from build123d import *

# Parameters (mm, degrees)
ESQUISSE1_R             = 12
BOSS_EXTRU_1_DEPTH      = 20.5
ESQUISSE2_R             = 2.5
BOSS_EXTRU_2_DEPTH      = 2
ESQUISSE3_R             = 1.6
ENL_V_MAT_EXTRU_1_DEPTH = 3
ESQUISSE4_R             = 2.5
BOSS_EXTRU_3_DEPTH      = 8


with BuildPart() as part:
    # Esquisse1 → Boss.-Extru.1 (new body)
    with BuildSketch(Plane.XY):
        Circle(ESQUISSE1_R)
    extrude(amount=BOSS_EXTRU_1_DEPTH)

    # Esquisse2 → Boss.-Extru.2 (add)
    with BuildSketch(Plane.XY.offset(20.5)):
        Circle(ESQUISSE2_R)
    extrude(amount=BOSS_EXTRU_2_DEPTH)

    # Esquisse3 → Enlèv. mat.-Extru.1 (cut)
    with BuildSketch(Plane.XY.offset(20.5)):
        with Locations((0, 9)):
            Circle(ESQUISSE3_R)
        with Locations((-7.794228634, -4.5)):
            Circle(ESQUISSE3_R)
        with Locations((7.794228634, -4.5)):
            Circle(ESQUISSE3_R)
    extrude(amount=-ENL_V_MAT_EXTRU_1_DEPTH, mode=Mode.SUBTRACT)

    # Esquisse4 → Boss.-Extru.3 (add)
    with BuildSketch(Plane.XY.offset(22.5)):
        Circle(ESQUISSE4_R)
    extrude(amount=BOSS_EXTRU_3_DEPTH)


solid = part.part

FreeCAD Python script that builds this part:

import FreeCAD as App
import Part
import Sketcher
from FreeCAD import Vector

doc = App.newDocument("Part")
body = doc.addObject("PartDesign::Body", "Body")

sketch1 = body.newObject("Sketcher::SketchObject", "Sketch")
sketch1.AttachmentSupport = (doc.getObject("XY_Plane"), [""])
sketch1.MapMode = "FlatFace"
sketch1.addGeometry(Part.Circle(Vector(0, 0, 0), Vector(0, 0, 1), 12), False)
sketch1.addConstraint([
    Sketcher.Constraint("Coincident", 0, 3, -1, 1),
    Sketcher.Constraint("Diameter", 0, 24.0),
])
pad1 = body.newObject("PartDesign::Pad", "Pad")
pad1.Profile = sketch1
pad1.Length = 20.5

sketch2 = body.newObject("Sketcher::SketchObject", "Sketch001")
sketch2.AttachmentSupport = (doc.getObject("XY_Plane"), [""])
sketch2.MapMode = "FlatFace"
sketch2.AttachmentOffset = App.Placement(Vector(0, 0, 20.5), App.Rotation())
sketch2.addGeometry(Part.Circle(Vector(0, 0, 0), Vector(0, 0, 1), 2.5), False)
sketch2.addConstraint([
    Sketcher.Constraint("Coincident", 0, 3, -1, 1),
    Sketcher.Constraint("Diameter", 0, 5.0),
])
pad2 = body.newObject("PartDesign::Pad", "Pad001")
pad2.Profile = sketch2
pad2.Length = 2

sketch3 = body.newObject("Sketcher::SketchObject", "Sketch002")
sketch3.AttachmentSupport = (doc.getObject("XY_Plane"), [""])
sketch3.MapMode = "FlatFace"
sketch3.AttachmentOffset = App.Placement(Vector(0, 0, 20.5), App.Rotation())
sketch3.addGeometry([
    Part.Circle(Vector(0, 9, 0), Vector(0, 0, 1), 1.6),
    Part.Circle(Vector(-7.794229, -4.5, 0), Vector(0, 0, 1), 1.6),
    Part.Circle(Vector(7.794229, -4.5, 0), Vector(0, 0, 1), 1.6),
], False)
sketch3.addConstraint([
    Sketcher.Constraint("Equal", 0, 1),
    Sketcher.Constraint("Equal", 1, 2),
    Sketcher.Constraint("Symmetric", 1, 3, 2, 3, -2),
    Sketcher.Constraint("PointOnObject", 0, 3, -2),
    Sketcher.Constraint("Diameter", 0, 3.2),
    Sketcher.Constraint("DistanceY", -1, 1, 0, 3, 9.0),
    Sketcher.Constraint("DistanceY", 1, 3, -1, 1, 4.5),
    Sketcher.Constraint("DistanceX", 1, 3, -1, 1, 7.794229),
])
pocket1 = body.newObject("PartDesign::Pocket", "Pocket")
pocket1.Profile = sketch3
pocket1.Length = 3

sketch4 = body.newObject("Sketcher::SketchObject", "Sketch003")
sketch4.AttachmentSupport = (doc.getObject("XY_Plane"), [""])
sketch4.MapMode = "FlatFace"
sketch4.AttachmentOffset = App.Placement(Vector(0, 0, 22.5), App.Rotation())
sketch4.addGeometry(Part.Circle(Vector(0, 0, 0), Vector(0, 0, 1), 2.5), False)
sketch4.addConstraint([
    Sketcher.Constraint("Coincident", 0, 3, -1, 1),
    Sketcher.Constraint("Diameter", 0, 5.0),
])
pad3 = body.newObject("PartDesign::Pad", "Pad002")
pad3.Profile = sketch4
pad3.Length = 8

doc.recompute()
